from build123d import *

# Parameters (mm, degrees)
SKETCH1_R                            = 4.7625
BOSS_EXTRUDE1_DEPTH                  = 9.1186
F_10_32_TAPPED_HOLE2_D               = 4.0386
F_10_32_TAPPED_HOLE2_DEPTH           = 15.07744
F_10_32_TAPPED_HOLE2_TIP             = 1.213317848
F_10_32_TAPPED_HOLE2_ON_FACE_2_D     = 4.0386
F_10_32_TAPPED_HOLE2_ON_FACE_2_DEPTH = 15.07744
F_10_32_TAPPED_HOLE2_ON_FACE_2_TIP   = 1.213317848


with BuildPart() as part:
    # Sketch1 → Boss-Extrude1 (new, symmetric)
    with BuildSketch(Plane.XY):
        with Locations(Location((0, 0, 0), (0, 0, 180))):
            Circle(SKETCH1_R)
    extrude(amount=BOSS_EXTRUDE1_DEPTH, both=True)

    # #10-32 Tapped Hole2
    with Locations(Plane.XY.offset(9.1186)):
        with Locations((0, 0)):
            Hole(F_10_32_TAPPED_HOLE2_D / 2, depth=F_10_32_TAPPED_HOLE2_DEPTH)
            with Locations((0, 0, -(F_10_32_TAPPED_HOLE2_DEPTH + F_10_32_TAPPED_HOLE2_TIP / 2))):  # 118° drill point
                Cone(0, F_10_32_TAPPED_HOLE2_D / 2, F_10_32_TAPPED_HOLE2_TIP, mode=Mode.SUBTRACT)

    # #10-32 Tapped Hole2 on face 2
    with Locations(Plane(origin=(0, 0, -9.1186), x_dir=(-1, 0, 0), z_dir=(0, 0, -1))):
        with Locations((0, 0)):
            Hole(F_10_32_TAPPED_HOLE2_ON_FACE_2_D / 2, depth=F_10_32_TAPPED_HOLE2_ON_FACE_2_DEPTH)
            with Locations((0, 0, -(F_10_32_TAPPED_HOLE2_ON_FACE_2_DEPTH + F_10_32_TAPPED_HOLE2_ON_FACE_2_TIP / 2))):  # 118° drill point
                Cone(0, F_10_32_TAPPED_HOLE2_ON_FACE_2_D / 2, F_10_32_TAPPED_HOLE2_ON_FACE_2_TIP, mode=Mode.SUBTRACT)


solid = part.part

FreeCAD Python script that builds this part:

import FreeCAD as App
import Part
import Sketcher
Q = App.Units.Quantity

doc = App.newDocument("Part")
params = doc.addObject("Spreadsheet::Sheet", "Params")
for row, (alias, value) in enumerate([
    ("sketch1_diameter", "0.375 in"),
    ("pad1_length", "0.718 in"),
    ("sketch2_diameter", "0.159 in"),
    ("hole_diameter", "0.159 in"),
    ("hole_depth", "0.5936 in"),
    ("sketch3_diameter", "0.159 in"),
    ("hole2_diameter", "0.159 in"),
    ("hole2_depth", "0.5936 in"),
], start=1):
    params.set(f"A{row}", alias)
    params.set(f"B{row}", "=" + value)
    params.setAlias(f"B{row}", alias)

body = doc.addObject("PartDesign::Body", "Body")

# Sketch on XY plane
sketch1 = body.newObject("Sketcher::SketchObject", "Sketch")
sketch1.AttachmentSupport = (doc.getObject("XY_Plane"), [""])
sketch1.MapMode = "FlatFace"
sketch1.addGeometry(Part.Circle(App.Vector(0, 0, 0), App.Vector(0, 0, 1), 4.7625), False)
sketch1.addConstraint(Sketcher.Constraint("Coincident", 0, 3, -1, 1))
sketch1.addConstraint(Sketcher.Constraint("Diameter", 0, Q("0.375 in")))
sketch1.setExpression("Constraints[1]", "Params.sketch1_diameter")
pad1 = body.newObject("PartDesign::Pad", "Pad")
pad1.Profile = sketch1
pad1.setExpression("Length", "Params.pad1_length")
pad1.Midplane = True

# Sketch on XY plane
sketch2 = body.newObject("Sketcher::SketchObject", "Sketch001")
sketch2.AttachmentSupport = (doc.getObject("XY_Plane"), [""])
sketch2.MapMode = "FlatFace"
sketch2.AttachmentOffset = App.Placement(App.Vector(0, 0, 0.359 * 25.4), App.Rotation())
sketch2.addGeometry(Part.Circle(App.Vector(0, 0, 0), App.Vector(0, 0, 1), 2.0193), False)
sketch2.addConstraint(Sketcher.Constraint("Coincident", 0, 3, -1, 1))
sketch2.addConstraint(Sketcher.Constraint("Diameter", 0, Q("0.159 in")))
sketch2.setExpression("Constraints[1]", "Params.sketch2_diameter")
doc.recompute()
hole = body.newObject("PartDesign::Hole", "Hole")
hole.Profile = sketch2
hole.ThreadType = "None"
hole.setExpression("Diameter", "Params.hole_diameter")
hole.DepthType = "Dimension"
hole.setExpression("Depth", "Params.hole_depth")
hole.DrillPoint = "Angled"
hole.DrillPointAngle = 118

# Sketch on XY plane
sketch3 = body.newObject("Sketcher::SketchObject", "Sketch002")
sketch3.AttachmentSupport = (doc.getObject("XY_Plane"), [""])
sketch3.MapMode = "FlatFace"
sketch3.AttachmentOffset = App.Placement(App.Vector(0, 0, -0.359 * 25.4), App.Rotation())
sketch3.addGeometry(Part.Circle(App.Vector(0, 0, 0), App.Vector(0, 0, 1), 2.0193), False)
sketch3.addConstraint(Sketcher.Constraint("Coincident", 0, 3, -1, 1))
sketch3.addConstraint(Sketcher.Constraint("Diameter", 0, Q("0.159 in")))
sketch3.setExpression("Constraints[1]", "Params.sketch3_diameter")
doc.recompute()
hole2 = body.newObject("PartDesign::Hole", "Hole001")
hole2.Profile = sketch3
hole2.ThreadType = "None"
hole2.setExpression("Diameter", "Params.hole2_diameter")
hole2.DepthType = "Dimension"
hole2.setExpression("Depth", "Params.hole2_depth")
hole2.DrillPoint = "Angled"
hole2.DrillPointAngle = 118
hole2.Reversed = True

doc.recompute()
